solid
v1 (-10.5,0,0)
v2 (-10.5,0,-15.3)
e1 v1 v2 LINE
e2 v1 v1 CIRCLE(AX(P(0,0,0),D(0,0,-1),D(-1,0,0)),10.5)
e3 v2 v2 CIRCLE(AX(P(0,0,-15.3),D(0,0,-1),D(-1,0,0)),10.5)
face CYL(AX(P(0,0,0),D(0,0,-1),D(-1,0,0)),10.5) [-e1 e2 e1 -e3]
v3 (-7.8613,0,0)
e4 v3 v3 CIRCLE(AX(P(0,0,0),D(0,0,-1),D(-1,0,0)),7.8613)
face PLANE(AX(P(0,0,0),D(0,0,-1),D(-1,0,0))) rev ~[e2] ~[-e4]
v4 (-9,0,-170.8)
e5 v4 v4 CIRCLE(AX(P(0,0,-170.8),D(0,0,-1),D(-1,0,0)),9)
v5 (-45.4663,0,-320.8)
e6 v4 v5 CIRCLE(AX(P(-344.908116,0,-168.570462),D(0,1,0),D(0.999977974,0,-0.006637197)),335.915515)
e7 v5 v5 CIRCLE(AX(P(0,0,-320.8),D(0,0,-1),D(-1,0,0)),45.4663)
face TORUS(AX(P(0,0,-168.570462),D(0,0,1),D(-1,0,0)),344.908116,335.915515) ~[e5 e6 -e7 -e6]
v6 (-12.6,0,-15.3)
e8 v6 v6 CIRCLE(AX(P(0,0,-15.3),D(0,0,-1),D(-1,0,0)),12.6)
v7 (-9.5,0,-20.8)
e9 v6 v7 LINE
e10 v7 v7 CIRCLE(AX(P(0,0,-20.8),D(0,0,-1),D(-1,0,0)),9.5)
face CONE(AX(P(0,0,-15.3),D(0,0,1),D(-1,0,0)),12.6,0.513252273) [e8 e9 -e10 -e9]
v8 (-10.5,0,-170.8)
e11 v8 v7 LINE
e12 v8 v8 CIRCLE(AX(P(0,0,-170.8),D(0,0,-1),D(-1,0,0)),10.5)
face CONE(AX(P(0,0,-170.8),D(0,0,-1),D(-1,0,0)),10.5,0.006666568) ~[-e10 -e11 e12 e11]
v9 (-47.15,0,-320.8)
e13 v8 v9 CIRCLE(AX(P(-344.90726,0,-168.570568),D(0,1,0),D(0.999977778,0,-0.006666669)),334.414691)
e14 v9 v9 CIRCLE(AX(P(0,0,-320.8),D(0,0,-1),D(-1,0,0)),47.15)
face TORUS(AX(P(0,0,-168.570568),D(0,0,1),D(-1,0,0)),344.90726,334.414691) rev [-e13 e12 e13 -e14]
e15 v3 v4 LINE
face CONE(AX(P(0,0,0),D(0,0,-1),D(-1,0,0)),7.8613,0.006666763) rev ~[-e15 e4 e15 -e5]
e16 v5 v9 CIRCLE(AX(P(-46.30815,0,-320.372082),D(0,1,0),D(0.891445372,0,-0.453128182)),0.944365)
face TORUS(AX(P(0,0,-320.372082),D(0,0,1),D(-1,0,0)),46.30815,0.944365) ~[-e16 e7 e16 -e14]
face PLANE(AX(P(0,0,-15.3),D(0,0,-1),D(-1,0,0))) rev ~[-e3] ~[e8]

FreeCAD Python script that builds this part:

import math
import FreeCAD as App
import Part
import Sketcher
Q = App.Units.Quantity

doc = App.newDocument("Part")
params = doc.addObject("Spreadsheet::Sheet", "Params")
for row, (alias, value) in enumerate([
    ("sketch1_height", "15.3 mm"),
    ("revolution_angle", "360 deg"),
], start=1):
    params.set(f"A{row}", alias)
    params.set(f"B{row}", "=" + value)
    params.setAlias(f"B{row}", alias)

body = doc.addObject("PartDesign::Body", "Body")

sketch1 = doc.addObject("Sketcher::SketchObject", "Sketch")
body.addObject(sketch1)
sketch1.AttachmentSupport = (doc.XZ_Plane, [""])
sketch1.MapMode = "FlatFace"
sketch1.addGeometry([
    Part.LineSegment(App.Vector(-10.5, -15.3, 0), App.Vector(-10.5, 0, 0)),
    Part.LineSegment(App.Vector(-10.5, 0, 0), App.Vector(-7.8613, 0, 0)),
    Part.LineSegment(App.Vector(-7.8613, 0, 0), App.Vector(-9, -170.8, 0)),
    Part.ArcOfCircle(Part.Circle(App.Vector(-344.908116, -168.570462, 0), App.Vector(0, 0, 1), 335.915515), math.radians(-26.947768), math.radians(-0.380286)),
    Part.ArcOfCircle(Part.Circle(App.Vector(-46.3082, -320.372, 0), App.Vector(0, 0, 1), 0.944447), math.radians(-153.049654), math.radians(-26.947596)),
    Part.ArcOfCircle(Part.Circle(App.Vector(-344.907, -168.5706, 0), App.Vector(0, 0, 1), 334.414431), math.radians(-27.078562), math.radians(-0.38197)),
    Part.LineSegment(App.Vector(-10.5, -170.8, 0), App.Vector(-9.5, -20.8, 0)),
    Part.LineSegment(App.Vector(-9.5, -20.8, 0), App.Vector(-12.6, -15.3, 0)),
    Part.LineSegment(App.Vector(-12.6, -15.3, 0), App.Vector(-10.5, -15.3, 0)),
], False)
sketch1.addConstraint([
    Sketcher.Constraint("Coincident", 0, 2, 1, 1),
    Sketcher.Constraint("Coincident", 1, 2, 2, 1),
    Sketcher.Constraint("Coincident", 2, 2, 3, 2),
    Sketcher.Constraint("Coincident", 3, 1, 4, 2),
    Sketcher.Constraint("Coincident", 4, 1, 5, 1),
    Sketcher.Constraint("Coincident", 5, 2, 6, 1),
    Sketcher.Constraint("Coincident", 6, 2, 7, 1),
    Sketcher.Constraint("Coincident", 7, 2, 8, 1),
    Sketcher.Constraint("Coincident", 8, 2, 0, 1),
    Sketcher.Constraint("Vertical", 0),
    Sketcher.Constraint("Horizontal", 1),
    Sketcher.Constraint("Horizontal", 8),
    Sketcher.Constraint("PointOnObject", 0, 2, -1),
    Sketcher.Constraint("DistanceY", 0, 1, 0, 2, Q("15.3 mm")),
    Sketcher.Constraint("DistanceY", 3, 1, 2, 2, Q("150 mm")),
    Sketcher.Constraint("DistanceY", 4, 1, 2, 2, Q("150 mm")),
    Sketcher.Constraint("DistanceY", 3, 1, 5, 2, Q("150 mm")),
    Sketcher.Constraint("DistanceY", 2, 2, 6, 2, Q("150 mm")),
    Sketcher.Constraint("DistanceX", 0, 2, -1, 1, Q("10.5 mm")),
    Sketcher.Constraint("DistanceX", 5, 2, -1, 1, Q("10.5 mm")),
    Sketcher.Constraint("DistanceX", 6, 2, -1, 1, Q("9.5 mm")),
    Sketcher.Constraint("DistanceX", 7, 2, -1, 1, Q("12.6 mm")),
    Sketcher.Constraint("DistanceX", 0, 2, 2, 2, Q("1.5 mm")),
    Sketcher.Constraint("DistanceY", 6, 2, 7, 2, Q("5.5 mm")),
    Sketcher.Constraint("DistanceX", 4, 1, -1, 1, Q("47.15 mm")),
    Sketcher.Constraint("Radius", 3, Q("335.9155 mm")),
    Sketcher.Constraint("Radius", 4, Q("0.9444 mm")),
    Sketcher.Constraint("Radius", 5, Q("334.4144 mm")),
    Sketcher.Constraint("DistanceX", 3, 3, 4, 3, Q("298.6 mm")),
    Sketcher.Constraint("DistanceX", 1, 1, 1, 2, Q("2.6387 mm")),
])
sketch1.setExpression("Constraints[13]", "Params.sketch1_height")
revolution = doc.addObject("PartDesign::Revolution", "Revolution")
body.addObject(revolution)
revolution.Profile = sketch1
revolution.ReferenceAxis = (sketch1, ["V_Axis"])
revolution.setExpression("Angle", "Params.revolution_angle")

doc.recompute()
